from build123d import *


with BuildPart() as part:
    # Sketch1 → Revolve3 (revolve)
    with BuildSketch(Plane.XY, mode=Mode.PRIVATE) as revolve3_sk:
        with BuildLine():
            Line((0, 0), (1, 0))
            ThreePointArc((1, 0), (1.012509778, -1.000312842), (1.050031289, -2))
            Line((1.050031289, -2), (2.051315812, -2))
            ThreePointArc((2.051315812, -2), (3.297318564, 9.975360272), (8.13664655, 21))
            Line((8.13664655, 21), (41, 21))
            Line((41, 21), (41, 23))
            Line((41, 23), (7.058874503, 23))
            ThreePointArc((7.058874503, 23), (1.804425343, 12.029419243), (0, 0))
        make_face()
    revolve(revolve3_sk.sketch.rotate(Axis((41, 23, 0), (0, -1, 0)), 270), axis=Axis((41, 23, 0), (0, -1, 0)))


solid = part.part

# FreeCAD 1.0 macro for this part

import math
import FreeCAD as App
import Part
import Sketcher

doc = App.newDocument("Part")
body = doc.addObject("PartDesign::Body", "Body")

# Sketch on XY plane
sketch1 = body.newObject("Sketcher::SketchObject", "Sketch")
sketch1.AttachmentSupport = (doc.getObject("XY_Plane"), [""])
sketch1.MapMode = "FlatFace"
sketch1.addGeometry([
    Part.LineSegment(App.Vector(0, 0, 0), App.Vector(1, 0, 0)),  # 0
    Part.ArcOfCircle(Part.Circle(App.Vector(41, 0, 0), App.Vector(0, 0, 1), 40), math.radians(180), math.radians(182.87)),  # 1
    Part.LineSegment(App.Vector(1.1, -2, 0), App.Vector(2.1, -2, 0)),  # 2
    Part.ArcOfCircle(Part.Circle(App.Vector(41, 0, 0), App.Vector(0, 0, 1), 39), math.radians(147), math.radians(183)),  # 3
    Part.LineSegment(App.Vector(8.1, 21, 0), App.Vector(41, 21, 0)),  # 4
    Part.LineSegment(App.Vector(41, 21, 0), App.Vector(41, 23, 0)),  # 5
    Part.LineSegment(App.Vector(41, 23, 0), App.Vector(7.1, 23, 0)),  # 6
    Part.ArcOfCircle(Part.Circle(App.Vector(41, 0, 0), App.Vector(0, 0, 1), 41), math.radians(146), math.radians(180)),  # 7
], False)
sketch1.addGeometry(Part.LineSegment(App.Vector(41, 23, 0), App.Vector(41, -2, 0)), True)  # axis
sketch1.addConstraint([
    Sketcher.Constraint("Coincident", 0, 2, 1, 1),
    Sketcher.Constraint("Coincident", 1, 2, 2, 1),
    Sketcher.Constraint("Coincident", 2, 2, 3, 2),
    Sketcher.Constraint("Coincident", 3, 1, 4, 1),
    Sketcher.Constraint("Coincident", 4, 2, 5, 1),
    Sketcher.Constraint("Coincident", 5, 2, 6, 1),
    Sketcher.Constraint("Coincident", 6, 2, 7, 1),
    Sketcher.Constraint("Coincident", 7, 2, 0, 1),
    Sketcher.Constraint("Horizontal", 0),
    Sketcher.Constraint("Horizontal", 2),
    Sketcher.Constraint("Horizontal", 4),
    Sketcher.Constraint("Vertical", 5),
    Sketcher.Constraint("Horizontal", 6),
    Sketcher.Constraint("Vertical", 8),
    Sketcher.Constraint("Coincident", 7, 2, -1, 1),
    Sketcher.Constraint("Coincident", 3, 3, 1, 3),
    Sketcher.Constraint("Coincident", 7, 3, 1, 3),
    Sketcher.Constraint("Coincident", 8, 1, 5, 2),
    Sketcher.Constraint("PointOnObject", 1, 3, -1),
    Sketcher.Constraint("Horizontal", 2, 2, 8, 2),
    Sketcher.Constraint("Vertical", 7, 3, 4, 2),
    Sketcher.Constraint("Radius", 1, 39.999999),
    Sketcher.Constraint("Radius", 3, 39.0),
    Sketcher.Constraint("Radius", 7, 41.0),
    Sketcher.Constraint("DistanceY", 5, 1, 5, 2, 2.0),
    Sketcher.Constraint("DistanceY", 8, 2, 8, 1, 25.0),
    Sketcher.Constraint("DistanceY", 1, 2, -1, 1, 2.0),
])
revolution = body.newObject("PartDesign::Revolution", "Revolution")
revolution.Profile = sketch1
revolution.ReferenceAxis = (sketch1, ["Axis0"])
revolution.Angle = 360

doc.recompute()
